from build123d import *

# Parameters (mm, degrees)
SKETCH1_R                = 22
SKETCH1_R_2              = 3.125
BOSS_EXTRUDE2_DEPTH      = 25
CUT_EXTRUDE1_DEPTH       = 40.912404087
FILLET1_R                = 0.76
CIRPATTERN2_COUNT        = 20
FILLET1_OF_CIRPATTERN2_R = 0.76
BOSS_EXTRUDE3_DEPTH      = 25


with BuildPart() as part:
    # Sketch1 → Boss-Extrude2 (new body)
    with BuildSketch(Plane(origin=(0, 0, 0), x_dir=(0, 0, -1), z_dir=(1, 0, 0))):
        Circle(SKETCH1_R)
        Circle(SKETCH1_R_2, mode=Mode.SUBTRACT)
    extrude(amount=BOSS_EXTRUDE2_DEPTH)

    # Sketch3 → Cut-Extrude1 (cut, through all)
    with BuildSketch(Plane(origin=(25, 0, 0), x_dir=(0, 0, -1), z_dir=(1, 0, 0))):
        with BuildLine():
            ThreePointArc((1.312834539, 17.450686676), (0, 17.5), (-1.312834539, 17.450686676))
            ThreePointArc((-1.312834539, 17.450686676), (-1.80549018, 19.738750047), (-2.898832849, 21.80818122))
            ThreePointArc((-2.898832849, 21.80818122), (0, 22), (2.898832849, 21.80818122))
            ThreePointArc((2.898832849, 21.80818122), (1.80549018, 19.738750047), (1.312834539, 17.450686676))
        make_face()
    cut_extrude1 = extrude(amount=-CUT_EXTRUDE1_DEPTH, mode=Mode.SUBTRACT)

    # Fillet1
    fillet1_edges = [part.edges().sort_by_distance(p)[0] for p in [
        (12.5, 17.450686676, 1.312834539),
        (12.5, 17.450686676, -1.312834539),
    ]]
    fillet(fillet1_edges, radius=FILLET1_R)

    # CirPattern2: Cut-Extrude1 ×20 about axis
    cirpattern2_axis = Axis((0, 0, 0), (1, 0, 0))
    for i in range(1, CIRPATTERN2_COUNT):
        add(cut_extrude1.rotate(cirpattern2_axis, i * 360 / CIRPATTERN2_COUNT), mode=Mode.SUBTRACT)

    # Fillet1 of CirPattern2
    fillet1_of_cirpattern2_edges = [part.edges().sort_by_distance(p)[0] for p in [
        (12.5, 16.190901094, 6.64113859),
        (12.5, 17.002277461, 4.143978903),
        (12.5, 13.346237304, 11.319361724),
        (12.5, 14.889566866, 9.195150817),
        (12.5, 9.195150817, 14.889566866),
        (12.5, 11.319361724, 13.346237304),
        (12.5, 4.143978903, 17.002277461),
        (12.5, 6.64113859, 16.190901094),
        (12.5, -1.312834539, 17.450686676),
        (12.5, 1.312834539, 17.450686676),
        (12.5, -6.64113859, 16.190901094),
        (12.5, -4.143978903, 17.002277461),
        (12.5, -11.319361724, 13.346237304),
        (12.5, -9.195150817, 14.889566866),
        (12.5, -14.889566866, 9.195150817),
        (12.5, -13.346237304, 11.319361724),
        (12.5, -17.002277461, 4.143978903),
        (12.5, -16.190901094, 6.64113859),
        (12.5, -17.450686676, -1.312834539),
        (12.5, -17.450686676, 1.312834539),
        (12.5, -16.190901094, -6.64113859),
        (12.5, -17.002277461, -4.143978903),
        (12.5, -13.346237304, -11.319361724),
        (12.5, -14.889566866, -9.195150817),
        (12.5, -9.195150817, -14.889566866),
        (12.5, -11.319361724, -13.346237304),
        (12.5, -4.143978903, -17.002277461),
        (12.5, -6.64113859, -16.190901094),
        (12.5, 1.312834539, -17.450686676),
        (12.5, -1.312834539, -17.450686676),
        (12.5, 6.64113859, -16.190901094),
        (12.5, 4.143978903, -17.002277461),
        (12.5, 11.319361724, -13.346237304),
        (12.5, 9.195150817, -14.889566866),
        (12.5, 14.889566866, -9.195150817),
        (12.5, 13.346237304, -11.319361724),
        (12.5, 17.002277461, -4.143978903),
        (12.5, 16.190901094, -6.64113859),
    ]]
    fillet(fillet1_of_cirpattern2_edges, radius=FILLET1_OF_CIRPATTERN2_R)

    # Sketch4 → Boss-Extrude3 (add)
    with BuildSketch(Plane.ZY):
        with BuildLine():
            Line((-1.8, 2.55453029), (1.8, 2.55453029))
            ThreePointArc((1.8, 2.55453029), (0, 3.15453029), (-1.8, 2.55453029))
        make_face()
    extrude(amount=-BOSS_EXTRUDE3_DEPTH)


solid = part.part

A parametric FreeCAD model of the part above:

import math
import FreeCAD as App
import Part
import Sketcher
Q = App.Units.Quantity


def edges_at(feature, points):
    """Names of the edges that pass closest to the given points."""
    edges = feature.Shape.Edges
    near = lambda p: min(range(len(edges)), key=lambda i: edges[i].distToShape(Part.Vertex(*p))[0])
    return sorted({f"Edge{near(p) + 1}" for p in points})

doc = App.newDocument("Part")
body = doc.addObject("PartDesign::Body", "Body")

sketch1 = body.newObject("Sketcher::SketchObject", "Sketch")
sketch1.AttachmentSupport = (doc.getObject("YZ_Plane"), [""])
sketch1.MapMode = "FlatFace"
sketch1.addGeometry(Part.Circle(App.Vector(0, 0, 0), App.Vector(0, 0, 1), 22), False)
sketch1.addGeometry(Part.Circle(App.Vector(0, 0, 0), App.Vector(0, 0, 1), 3.1), False)
sketch1.addConstraint(Sketcher.Constraint("Coincident", 0, 3, -1, 1))
sketch1.addConstraint(Sketcher.Constraint("Coincident", 1, 3, -1, 1))
sketch1.addConstraint(Sketcher.Constraint("Diameter", 0, Q("44 mm")))
sketch1.addConstraint(Sketcher.Constraint("Diameter", 1, Q("6.25 mm")))
pad1 = body.newObject("PartDesign::Pad", "Pad")
pad1.Profile = sketch1
pad1.Length = 25

sketch2 = body.newObject("Sketcher::SketchObject", "Sketch001")
sketch2.AttachmentSupport = (doc.getObject("YZ_Plane"), [""])
sketch2.MapMode = "FlatFace"
sketch2.AttachmentOffset = App.Placement(App.Vector(0, 0, 25), App.Rotation())
sketch2.addGeometry(Part.ArcOfCircle(Part.Circle(App.Vector(0, 0, 0), App.Vector(0, 0, 1), 17.5), math.radians(-4.3), math.radians(4.3)), False)
sketch2.addGeometry(Part.ArcOfCircle(Part.Circle(App.Vector(16.8, -9.9, 0), App.Vector(0, 0, 1), 8.6), math.radians(54), math.radians(86)), False)
sketch2.addGeometry(Part.ArcOfCircle(Part.Circle(App.Vector(0, 0, 0), App.Vector(0, 0, 1), 22), math.radians(-7.57), math.radians(7.57)), False)
sketch2.addGeometry(Part.ArcOfCircle(Part.Circle(App.Vector(16.8, 9.9, 0), App.Vector(0, 0, 1), 8.6), math.radians(-86), math.radians(-54)), False)
sketch2.addConstraint(Sketcher.Constraint("Coincident", 0, 1, 1, 2))
sketch2.addConstraint(Sketcher.Constraint("Coincident", 1, 1, 2, 1))
sketch2.addConstraint(Sketcher.Constraint("Coincident", 2, 2, 3, 2))
sketch2.addConstraint(Sketcher.Constraint("Coincident", 3, 1, 0, 2))
sketch2.addConstraint(Sketcher.Constraint("Coincident", 0, 3, -1, 1))
sketch2.addConstraint(Sketcher.Constraint("Coincident", 2, 3, -1, 1))
sketch2.addConstraint(Sketcher.Constraint("Equal", 1, 3))
sketch2.addConstraint(Sketcher.Constraint("Symmetric", 1, 3, 3, 3, -1))
sketch2.addConstraint(Sketcher.Constraint("Radius", 2, Q("22 mm")))
sketch2.addConstraint(Sketcher.Constraint("Radius", 0, Q("17.5 mm")))
sketch2.addConstraint(Sketcher.Constraint("Radius", 1, Q("8.569493 mm")))
sketch2.addConstraint(Sketcher.Constraint("DistanceY", 1, 1, 0, 1, Q("1.585998 mm")))
sketch2.addConstraint(Sketcher.Constraint("DistanceX", -1, 1, 1, 3, Q("16.807811 mm")))
pocket1 = body.newObject("PartDesign::Pocket", "Pocket")
pocket1.Profile = sketch2
pocket1.Type = "ThroughAll"
doc.recompute()

fillet = body.newObject("PartDesign::Fillet", "Fillet")
fillet.Base = (pocket1, edges_at(pocket1, [(12.5, 17.451, 1.313), (12.5, 17.451, -1.313)]))
fillet.Radius = 0.76
doc.recompute()

polarpattern = body.newObject("PartDesign::PolarPattern", "PolarPattern")
polarpattern.Originals = [pocket1]
polarpattern.Axis = (doc.getObject("X_Axis"), [""])
polarpattern.Angle = 360
polarpattern.Occurrences = 20
body.Tip = polarpattern
doc.recompute()

fillet2 = body.newObject("PartDesign::Fillet", "Fillet001")
fillet2.Base = (polarpattern, edges_at(polarpattern, [
    (12.5, 16.191, 6.641),
    (12.5, 17.002, 4.144),
    (12.5, 13.346, 11.319),
    (12.5, 14.89, 9.195),
    (12.5, 9.195, 14.89),
    (12.5, 11.319, 13.346),
    (12.5, 4.144, 17.002),
    (12.5, 6.641, 16.191),
    (12.5, -1.313, 17.451),
    (12.5, 1.313, 17.451),
    (12.5, -6.641, 16.191),
    (12.5, -4.144, 17.002),
    (12.5, -11.319, 13.346),
    (12.5, -9.195, 14.89),
    (12.5, -14.89, 9.195),
    (12.5, -13.346, 11.319),
    (12.5, -17.002, 4.144),
    (12.5, -16.191, 6.641),
    (12.5, -17.451, -1.313),
    (12.5, -17.451, 1.313),
    (12.5, -16.191, -6.641),
    (12.5, -17.002, -4.144),
    (12.5, -13.346, -11.319),
    (12.5, -14.89, -9.195),
    (12.5, -9.195, -14.89),
    (12.5, -11.319, -13.346),
    (12.5, -4.144, -17.002),
    (12.5, -6.641, -16.191),
    (12.5, 1.313, -17.451),
    (12.5, -1.313, -17.451),
    (12.5, 6.641, -16.191),
    (12.5, 4.144, -17.002),
    (12.5, 11.319, -13.346),
    (12.5, 9.195, -14.89),
    (12.5, 14.89, -9.195),
    (12.5, 13.346, -11.319),
    (12.5, 17.002, -4.144),
    (12.5, 16.191, -6.641),
]))
fillet2.Radius = 0.76

sketch3 = body.newObject("Sketcher::SketchObject", "Sketch002")
sketch3.AttachmentSupport = (doc.getObject("YZ_Plane"), [""])
sketch3.MapMode = "FlatFace"
sketch3.addGeometry(Part.LineSegment(App.Vector(2.6, -1.8, 0), App.Vector(2.6, 1.8, 0)), False)
sketch3.addGeometry(Part.ArcOfCircle(Part.Circle(App.Vector(0.2, 0, 0), App.Vector(0, 0, 1), 3), math.radians(-37), math.radians(37)), False)
sketch3.addConstraint(Sketcher.Constraint("Coincident", 0, 1, 1, 1))
sketch3.addConstraint(Sketcher.Constraint("Coincident", 1, 2, 0, 2))
sketch3.addConstraint(Sketcher.Constraint("Vertical", 0))
sketch3.addConstraint(Sketcher.Constraint("PointOnObject", 1, 3, -1))
sketch3.addConstraint(Sketcher.Constraint("Radius", 1, Q("3 mm")))
sketch3.addConstraint(Sketcher.Constraint("DistanceY", 0, 1, 0, 2, Q("3.6 mm")))
sketch3.addConstraint(Sketcher.Constraint("DistanceX", -1, 1, 1, 3, Q("0.15453 mm")))
pad2 = body.newObject("PartDesign::Pad", "Pad001")
pad2.Profile = sketch3
pad2.Length = 25

doc.recompute()
